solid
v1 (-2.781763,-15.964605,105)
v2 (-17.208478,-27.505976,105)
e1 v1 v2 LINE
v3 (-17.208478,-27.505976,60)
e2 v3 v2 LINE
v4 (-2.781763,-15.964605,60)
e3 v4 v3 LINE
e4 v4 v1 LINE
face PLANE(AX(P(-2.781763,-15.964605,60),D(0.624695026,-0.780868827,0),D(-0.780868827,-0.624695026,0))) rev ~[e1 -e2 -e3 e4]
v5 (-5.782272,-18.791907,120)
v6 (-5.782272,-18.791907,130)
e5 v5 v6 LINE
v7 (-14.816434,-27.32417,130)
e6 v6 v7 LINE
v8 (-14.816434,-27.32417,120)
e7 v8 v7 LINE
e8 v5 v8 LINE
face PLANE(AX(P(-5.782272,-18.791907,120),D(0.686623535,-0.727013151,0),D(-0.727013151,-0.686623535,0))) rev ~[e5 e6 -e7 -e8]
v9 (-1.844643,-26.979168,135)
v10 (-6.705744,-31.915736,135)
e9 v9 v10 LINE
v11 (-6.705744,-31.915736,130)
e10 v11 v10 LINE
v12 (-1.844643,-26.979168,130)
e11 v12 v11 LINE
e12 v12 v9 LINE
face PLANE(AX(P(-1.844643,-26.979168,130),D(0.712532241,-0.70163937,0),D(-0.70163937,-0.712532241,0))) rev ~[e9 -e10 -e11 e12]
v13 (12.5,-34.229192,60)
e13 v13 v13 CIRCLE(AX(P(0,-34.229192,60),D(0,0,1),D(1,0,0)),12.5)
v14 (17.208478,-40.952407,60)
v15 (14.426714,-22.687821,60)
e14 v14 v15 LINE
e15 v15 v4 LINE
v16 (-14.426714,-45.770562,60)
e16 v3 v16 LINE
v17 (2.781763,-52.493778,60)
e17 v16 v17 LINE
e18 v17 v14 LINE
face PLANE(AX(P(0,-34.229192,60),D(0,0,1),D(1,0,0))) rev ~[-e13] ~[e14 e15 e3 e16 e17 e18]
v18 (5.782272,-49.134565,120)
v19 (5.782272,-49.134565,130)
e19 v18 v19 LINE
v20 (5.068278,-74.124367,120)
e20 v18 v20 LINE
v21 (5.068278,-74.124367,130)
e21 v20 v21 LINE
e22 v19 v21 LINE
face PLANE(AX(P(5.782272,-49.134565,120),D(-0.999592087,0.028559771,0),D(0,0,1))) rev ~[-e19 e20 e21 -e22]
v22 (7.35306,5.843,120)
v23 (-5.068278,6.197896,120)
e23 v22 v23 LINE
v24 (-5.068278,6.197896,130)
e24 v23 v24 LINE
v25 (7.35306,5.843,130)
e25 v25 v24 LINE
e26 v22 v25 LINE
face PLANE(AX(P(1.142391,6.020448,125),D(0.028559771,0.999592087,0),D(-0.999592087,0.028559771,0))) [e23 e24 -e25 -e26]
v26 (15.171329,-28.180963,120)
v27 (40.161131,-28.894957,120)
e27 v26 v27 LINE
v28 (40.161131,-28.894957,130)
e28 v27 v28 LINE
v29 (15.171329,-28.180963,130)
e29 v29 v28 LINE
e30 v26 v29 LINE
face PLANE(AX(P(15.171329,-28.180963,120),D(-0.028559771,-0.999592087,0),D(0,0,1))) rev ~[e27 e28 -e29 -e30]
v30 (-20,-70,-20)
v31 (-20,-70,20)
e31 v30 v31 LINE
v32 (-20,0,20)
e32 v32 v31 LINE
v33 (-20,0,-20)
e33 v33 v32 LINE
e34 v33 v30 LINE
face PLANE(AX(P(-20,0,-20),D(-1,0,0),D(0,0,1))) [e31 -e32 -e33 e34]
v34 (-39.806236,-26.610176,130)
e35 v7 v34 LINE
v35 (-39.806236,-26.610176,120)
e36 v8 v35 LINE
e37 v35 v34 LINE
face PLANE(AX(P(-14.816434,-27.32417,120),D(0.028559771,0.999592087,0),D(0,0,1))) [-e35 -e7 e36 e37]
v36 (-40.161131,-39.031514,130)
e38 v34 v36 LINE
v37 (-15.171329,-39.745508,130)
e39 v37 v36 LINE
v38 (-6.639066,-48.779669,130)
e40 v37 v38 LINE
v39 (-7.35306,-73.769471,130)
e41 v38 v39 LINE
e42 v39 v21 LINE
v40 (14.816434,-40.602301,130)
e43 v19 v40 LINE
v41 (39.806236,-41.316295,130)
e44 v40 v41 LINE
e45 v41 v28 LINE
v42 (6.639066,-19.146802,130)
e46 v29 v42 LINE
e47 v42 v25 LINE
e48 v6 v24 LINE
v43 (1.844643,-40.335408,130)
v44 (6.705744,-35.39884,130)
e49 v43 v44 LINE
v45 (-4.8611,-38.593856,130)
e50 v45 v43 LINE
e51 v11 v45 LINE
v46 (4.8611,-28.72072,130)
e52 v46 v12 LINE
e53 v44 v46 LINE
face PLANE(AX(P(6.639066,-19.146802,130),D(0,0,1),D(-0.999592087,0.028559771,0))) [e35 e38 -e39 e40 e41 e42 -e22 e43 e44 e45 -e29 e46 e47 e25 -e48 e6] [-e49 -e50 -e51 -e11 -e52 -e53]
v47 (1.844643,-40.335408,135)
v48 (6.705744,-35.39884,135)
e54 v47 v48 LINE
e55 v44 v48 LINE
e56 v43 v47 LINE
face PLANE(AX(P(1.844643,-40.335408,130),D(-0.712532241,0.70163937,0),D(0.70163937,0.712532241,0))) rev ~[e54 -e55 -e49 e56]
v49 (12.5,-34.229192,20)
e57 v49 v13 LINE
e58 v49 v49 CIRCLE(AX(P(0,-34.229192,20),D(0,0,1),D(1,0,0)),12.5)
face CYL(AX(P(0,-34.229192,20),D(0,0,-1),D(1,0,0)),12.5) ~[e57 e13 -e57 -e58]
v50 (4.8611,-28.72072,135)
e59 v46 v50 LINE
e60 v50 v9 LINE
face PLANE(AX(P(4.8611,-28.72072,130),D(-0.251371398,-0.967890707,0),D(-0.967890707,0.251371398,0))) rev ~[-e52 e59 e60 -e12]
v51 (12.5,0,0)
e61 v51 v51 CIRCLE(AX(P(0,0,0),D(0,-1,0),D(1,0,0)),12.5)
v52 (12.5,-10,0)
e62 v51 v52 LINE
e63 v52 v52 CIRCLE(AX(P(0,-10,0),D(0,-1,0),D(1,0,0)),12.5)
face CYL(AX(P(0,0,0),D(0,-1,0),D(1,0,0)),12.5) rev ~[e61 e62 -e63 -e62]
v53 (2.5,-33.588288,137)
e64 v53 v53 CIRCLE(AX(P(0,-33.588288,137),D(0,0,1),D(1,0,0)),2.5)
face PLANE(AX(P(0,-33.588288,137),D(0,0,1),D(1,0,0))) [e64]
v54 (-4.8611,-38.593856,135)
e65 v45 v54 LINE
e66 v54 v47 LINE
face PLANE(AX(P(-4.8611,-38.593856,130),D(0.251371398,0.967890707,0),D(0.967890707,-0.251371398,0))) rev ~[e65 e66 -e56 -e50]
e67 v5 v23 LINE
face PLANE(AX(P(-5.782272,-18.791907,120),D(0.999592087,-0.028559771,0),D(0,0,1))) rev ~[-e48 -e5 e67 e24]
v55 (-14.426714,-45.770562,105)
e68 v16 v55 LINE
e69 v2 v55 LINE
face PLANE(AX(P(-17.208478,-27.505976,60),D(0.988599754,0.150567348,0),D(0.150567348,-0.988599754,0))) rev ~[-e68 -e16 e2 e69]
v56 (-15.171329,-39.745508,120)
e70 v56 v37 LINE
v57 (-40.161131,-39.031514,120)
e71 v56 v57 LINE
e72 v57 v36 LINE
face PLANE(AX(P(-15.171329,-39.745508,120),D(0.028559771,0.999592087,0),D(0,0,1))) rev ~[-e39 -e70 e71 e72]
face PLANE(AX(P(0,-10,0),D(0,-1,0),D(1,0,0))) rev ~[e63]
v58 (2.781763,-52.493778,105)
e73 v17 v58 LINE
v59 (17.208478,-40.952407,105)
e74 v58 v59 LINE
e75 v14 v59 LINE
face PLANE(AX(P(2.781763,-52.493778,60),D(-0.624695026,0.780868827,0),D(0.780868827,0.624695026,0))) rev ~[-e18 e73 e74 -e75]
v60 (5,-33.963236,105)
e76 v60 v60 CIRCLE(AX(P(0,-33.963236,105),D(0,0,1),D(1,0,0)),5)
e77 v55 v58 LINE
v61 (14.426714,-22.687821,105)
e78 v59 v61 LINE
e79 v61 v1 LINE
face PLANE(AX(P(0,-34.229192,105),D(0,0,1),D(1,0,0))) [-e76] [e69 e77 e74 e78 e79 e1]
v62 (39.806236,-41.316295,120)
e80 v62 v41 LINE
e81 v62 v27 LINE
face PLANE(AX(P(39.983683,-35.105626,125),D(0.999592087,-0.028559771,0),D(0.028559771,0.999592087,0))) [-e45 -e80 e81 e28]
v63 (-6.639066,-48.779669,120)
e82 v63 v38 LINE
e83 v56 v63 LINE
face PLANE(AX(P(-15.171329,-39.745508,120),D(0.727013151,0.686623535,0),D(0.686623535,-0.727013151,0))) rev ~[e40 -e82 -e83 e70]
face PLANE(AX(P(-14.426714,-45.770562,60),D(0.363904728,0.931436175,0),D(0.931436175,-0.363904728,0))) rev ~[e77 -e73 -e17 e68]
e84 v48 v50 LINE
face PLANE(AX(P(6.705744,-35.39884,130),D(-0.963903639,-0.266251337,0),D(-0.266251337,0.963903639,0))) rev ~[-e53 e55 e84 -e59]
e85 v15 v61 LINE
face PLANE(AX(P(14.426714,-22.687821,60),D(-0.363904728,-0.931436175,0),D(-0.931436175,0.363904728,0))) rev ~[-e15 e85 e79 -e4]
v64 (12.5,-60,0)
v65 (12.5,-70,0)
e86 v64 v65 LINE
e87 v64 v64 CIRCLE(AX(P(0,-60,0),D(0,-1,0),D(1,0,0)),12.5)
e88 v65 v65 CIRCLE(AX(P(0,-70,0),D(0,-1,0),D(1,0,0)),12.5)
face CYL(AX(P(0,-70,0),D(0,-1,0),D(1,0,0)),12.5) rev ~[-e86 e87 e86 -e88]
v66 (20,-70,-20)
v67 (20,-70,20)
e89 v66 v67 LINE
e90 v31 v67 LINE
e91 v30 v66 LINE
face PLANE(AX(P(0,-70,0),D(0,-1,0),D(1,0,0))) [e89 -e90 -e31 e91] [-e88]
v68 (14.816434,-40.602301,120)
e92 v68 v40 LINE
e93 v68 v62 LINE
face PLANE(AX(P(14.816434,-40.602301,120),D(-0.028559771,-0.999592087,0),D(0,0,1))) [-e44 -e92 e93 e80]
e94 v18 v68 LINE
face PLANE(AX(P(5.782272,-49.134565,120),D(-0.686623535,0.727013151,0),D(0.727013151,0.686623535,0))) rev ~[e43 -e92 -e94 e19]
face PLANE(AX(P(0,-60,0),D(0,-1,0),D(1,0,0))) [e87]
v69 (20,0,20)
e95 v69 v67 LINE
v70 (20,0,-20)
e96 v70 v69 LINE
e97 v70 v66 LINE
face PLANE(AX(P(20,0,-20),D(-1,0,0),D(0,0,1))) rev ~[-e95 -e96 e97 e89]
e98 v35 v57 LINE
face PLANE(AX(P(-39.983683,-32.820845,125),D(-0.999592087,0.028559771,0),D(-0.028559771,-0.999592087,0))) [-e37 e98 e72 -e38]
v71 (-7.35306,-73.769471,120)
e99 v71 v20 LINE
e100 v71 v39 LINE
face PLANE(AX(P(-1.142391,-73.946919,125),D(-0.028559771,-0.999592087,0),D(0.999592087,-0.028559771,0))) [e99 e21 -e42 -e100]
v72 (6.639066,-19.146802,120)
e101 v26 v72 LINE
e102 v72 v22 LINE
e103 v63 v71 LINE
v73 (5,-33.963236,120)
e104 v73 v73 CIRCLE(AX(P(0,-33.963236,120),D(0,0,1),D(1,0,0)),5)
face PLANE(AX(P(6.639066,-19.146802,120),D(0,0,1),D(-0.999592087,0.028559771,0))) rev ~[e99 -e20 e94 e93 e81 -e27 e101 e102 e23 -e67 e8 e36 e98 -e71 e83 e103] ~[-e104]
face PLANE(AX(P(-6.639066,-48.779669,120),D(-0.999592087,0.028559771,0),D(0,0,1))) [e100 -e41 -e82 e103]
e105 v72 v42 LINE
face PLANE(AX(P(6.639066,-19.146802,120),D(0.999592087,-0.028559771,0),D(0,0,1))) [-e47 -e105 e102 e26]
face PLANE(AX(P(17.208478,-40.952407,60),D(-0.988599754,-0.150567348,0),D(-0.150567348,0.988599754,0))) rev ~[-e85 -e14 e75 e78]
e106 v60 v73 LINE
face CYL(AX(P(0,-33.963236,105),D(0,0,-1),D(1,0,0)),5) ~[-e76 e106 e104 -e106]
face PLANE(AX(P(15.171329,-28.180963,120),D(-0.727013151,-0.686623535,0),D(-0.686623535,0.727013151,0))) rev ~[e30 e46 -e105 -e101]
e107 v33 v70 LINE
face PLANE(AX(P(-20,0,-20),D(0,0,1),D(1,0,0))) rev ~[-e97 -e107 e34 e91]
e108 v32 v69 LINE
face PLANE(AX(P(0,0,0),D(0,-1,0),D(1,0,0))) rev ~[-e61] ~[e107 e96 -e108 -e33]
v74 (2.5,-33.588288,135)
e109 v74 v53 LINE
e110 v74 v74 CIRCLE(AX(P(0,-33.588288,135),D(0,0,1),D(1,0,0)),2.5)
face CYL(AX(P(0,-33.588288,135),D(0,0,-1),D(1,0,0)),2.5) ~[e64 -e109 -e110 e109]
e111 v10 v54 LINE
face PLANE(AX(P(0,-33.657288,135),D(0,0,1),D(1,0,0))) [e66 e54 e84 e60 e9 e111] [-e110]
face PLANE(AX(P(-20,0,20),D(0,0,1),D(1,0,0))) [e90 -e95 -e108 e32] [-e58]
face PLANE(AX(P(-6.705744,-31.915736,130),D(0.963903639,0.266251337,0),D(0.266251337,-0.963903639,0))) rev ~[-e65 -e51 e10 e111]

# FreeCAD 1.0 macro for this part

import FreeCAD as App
import Part
import Sketcher

V = App.Vector


def add_polygon(sketch, points):
    """Adds a closed chain of lines whose ends are joined by coincident constraints."""
    first, n = sketch.GeometryCount, len(points)
    for a, b in zip(points, points[1:] + points[:1]):
        sketch.addGeometry(Part.LineSegment(App.Vector(*a, 0), App.Vector(*b, 0)), False)
    for i in range(n):
        sketch.addConstraint(Sketcher.Constraint("Coincident", first + i, 2, first + (i + 1) % n, 1))

doc = App.newDocument("Part")
body = doc.addObject("PartDesign::Body", "Body")

# Sketch on XZ plane
sketch1 = doc.addObject("Sketcher::SketchObject", "Sketch")
body.addObject(sketch1)
sketch1.AttachmentSupport = (doc.XZ_Plane, [""])
sketch1.MapMode = "FlatFace"
add_polygon(sketch1, [(-20, 20), (-20, -20), (20, -20), (20, 20)])  # lines 0-3
sketch1.addConstraint([
    Sketcher.Constraint("Vertical", 0),
    Sketcher.Constraint("Horizontal", 1),
    Sketcher.Constraint("Vertical", 2),
    Sketcher.Constraint("Horizontal", 3),
    Sketcher.Constraint("Symmetric", 0, 2, 2, 2, -1, 1),
    Sketcher.Constraint("Equal", 3, 0),
    Sketcher.Constraint("DistanceX", 1, 1, 1, 2, 40.0),
])
pad1 = doc.addObject("PartDesign::Pad", "Pad")
body.addObject(pad1)
pad1.Profile = sketch1
pad1.Length = 70

# Sketch on XZ plane
sketch2 = doc.addObject("Sketcher::SketchObject", "Sketch001")
body.addObject(sketch2)
sketch2.AttachmentSupport = (doc.XZ_Plane, [""])
sketch2.MapMode = "FlatFace"
sketch2.addGeometry(Part.Circle(V(0, 0, 0), V(0, 0, 1), 12), False)
sketch2.addConstraint([
    Sketcher.Constraint("Coincident", 0, 3, -1, 1),
    Sketcher.Constraint("Diameter", 0, 25.0),
])
pocket1 = doc.addObject("PartDesign::Pocket", "Pocket")
body.addObject(pocket1)
pocket1.Profile = sketch2
pocket1.Length = 20
pocket1.Midplane = True

# Sketch on XZ plane
sketch3 = doc.addObject("Sketcher::SketchObject", "Sketch002")
body.addObject(sketch3)
sketch3.AttachmentSupport = (doc.XZ_Plane, [""])
sketch3.MapMode = "FlatFace"
sketch3.AttachmentOffset = App.Placement(V(0, 0, 70), App.Rotation())
sketch3.addGeometry(Part.Circle(V(0, 0, 0), V(0, 0, 1), 12), False)
sketch3.addConstraint([
    Sketcher.Constraint("Coincident", 0, 3, -1, 1),
    Sketcher.Constraint("Diameter", 0, 25.0),
])
pocket2 = doc.addObject("PartDesign::Pocket", "Pocket001")
body.addObject(pocket2)
pocket2.Profile = sketch3
pocket2.Length = 20
pocket2.Midplane = True

# Sketch on XY plane
sketch4 = doc.addObject("Sketcher::SketchObject", "Sketch003")
body.addObject(sketch4)
sketch4.AttachmentSupport = (doc.XY_Plane, [""])
sketch4.MapMode = "FlatFace"
sketch4.AttachmentOffset = App.Placement(V(0, 0, 20), App.Rotation())
sketch4.addGeometry(Part.Circle(V(0, -34, 0), V(0, 0, 1), 12), False)
sketch4.addConstraint([
    Sketcher.Constraint("PointOnObject", 0, 3, -2),
    Sketcher.Constraint("Diameter", 0, 25.0),
    Sketcher.Constraint("DistanceY", 0, 3, -1, 1, 34.229192),
])
pad2 = doc.addObject("PartDesign::Pad", "Pad001")
body.addObject(pad2)
pad2.Profile = sketch4
pad2.Length = 40

# Sketch on XY plane
sketch5 = doc.addObject("Sketcher::SketchObject", "Sketch004")
body.addObject(sketch5)
sketch5.AttachmentSupport = (doc.XY_Plane, [""])
sketch5.MapMode = "FlatFace"
sketch5.AttachmentOffset = App.Placement(V(0, 0, 60), App.Rotation())
add_polygon(sketch5, [(-2.781763, -15.964605), (-17.208478, -27.505976), (-14.426714, -45.770562), (2.781763, -52.493778), (17.208478, -40.952407), (14.426714, -22.687821)])  # lines 0-5
sketch5.addConstraint([
    Sketcher.Constraint("Distance", 0, 18.475209),
    Sketcher.Constraint("Distance", 1, 18.475209),
    Sketcher.Constraint("Distance", 2, 18.475209),
    Sketcher.Constraint("Distance", 3, 18.475209),
    Sketcher.Constraint("Distance", 4, 18.475209),
    Sketcher.Constraint("Distance", 5, 18.475209),
    Sketcher.Constraint("DistanceY", 2, 2, -1, 1, 52.493778),
    Sketcher.Constraint("DistanceY", 4, 2, -1, 1, 22.687821),
    Sketcher.Constraint("DistanceX", 0, 2, 2, 2, 19.990241),
    Sketcher.Constraint("DistanceY", 2, 2, 3, 2, 11.541371),
    Sketcher.Constraint("DistanceY", 3, 2, 0, 2, 13.446432),
    Sketcher.Constraint("DistanceX", 0, 2, -1, 1, 17.208478),
])
pad3 = doc.addObject("PartDesign::Pad", "Pad002")
body.addObject(pad3)
pad3.Profile = sketch5
pad3.Length = 45

# Sketch on XY plane
sketch6 = doc.addObject("Sketcher::SketchObject", "Sketch005")
body.addObject(sketch6)
sketch6.AttachmentSupport = (doc.XY_Plane, [""])
sketch6.MapMode = "FlatFace"
sketch6.AttachmentOffset = App.Placement(V(0, 0, 105), App.Rotation())
sketch6.addGeometry(Part.Circle(V(0, -34, 0), V(0, 0, 1), 5), False)
sketch6.addConstraint([
    Sketcher.Constraint("PointOnObject", 0, 3, -2),
    Sketcher.Constraint("Diameter", 0, 10.0),
    Sketcher.Constraint("DistanceY", 0, 3, -1, 1, 33.963236),
])
pad4 = doc.addObject("PartDesign::Pad", "Pad003")
body.addObject(pad4)
pad4.Profile = sketch6
pad4.Length = 15

# Sketch on XY plane
sketch7 = doc.addObject("Sketcher::SketchObject", "Sketch006")
body.addObject(sketch7)
sketch7.AttachmentSupport = (doc.XY_Plane, [""])
sketch7.MapMode = "FlatFace"
sketch7.AttachmentOffset = App.Placement(V(0, 0, 120), App.Rotation())
add_polygon(sketch7, [(15, -28), (7, -19), (-6, -19), (-15, -27), (-15, -40), (-7, -49), (6, -49), (15, -41)])  # lines 0-7
sketch7.addConstraint([
    Sketcher.Constraint("Perpendicular", 0, 2),
    Sketcher.Constraint("Perpendicular", 1, 3),
    Sketcher.Constraint("Perpendicular", 2, 4),
    Sketcher.Constraint("Perpendicular", 3, 5),
    Sketcher.Constraint("Perpendicular", 4, 6),
    Sketcher.Constraint("Perpendicular", 5, 7),
    Sketcher.Constraint("Equal", 0, 1),
    Sketcher.Constraint("Equal", 1, 2),
    Sketcher.Constraint("Equal", 2, 3),
    Sketcher.Constraint("Equal", 3, 4),
    Sketcher.Constraint("Equal", 4, 5),
    Sketcher.Constraint("DistanceY", 0, 2, -1, 1, 19.146802),
    Sketcher.Constraint("DistanceY", 6, 2, -1, 1, 40.602301),
    Sketcher.Constraint("DistanceY", 3, 2, 1, 2, 20.953601),
    Sketcher.Constraint("DistanceY", 2, 2, -1, 1, 27.32417),
    Sketcher.Constraint("DistanceX", 3, 2, -1, 1, 15.171329),
])
pad5 = doc.addObject("PartDesign::Pad", "Pad004")
body.addObject(pad5)
pad5.Profile = sketch7
pad5.Length = 10

# Sketch on an angled plane
sketch8 = doc.addObject("Sketcher::SketchObject", "Sketch007")
body.addObject(sketch8)
sketch8.Placement = App.Placement(V(-1.397983, -48.929414, 0), App.Rotation(V(0.999592087, -0.028559771, 0), V(0, 0, 1.000000001), V(-0.028559771, -0.999592087, 0), "ZXY"))
add_polygon(sketch8, [(-5, 130), (-5, 120), (7, 120), (7, 130)])  # lines 0-3
sketch8.addConstraint([
    Sketcher.Constraint("Vertical", 0),
    Sketcher.Constraint("Horizontal", 1),
    Sketcher.Constraint("Vertical", 2),
    Sketcher.Constraint("Horizontal", 3),
    Sketcher.Constraint("DistanceY", 0, 2, 0, 1, 10.0),
    Sketcher.Constraint("DistanceY", -1, 1, 0, 2, 120.0),
    Sketcher.Constraint("DistanceX", 1, 1, 1, 2, 12.426407),
    Sketcher.Constraint("DistanceX", 0, 2, -1, 1, 5.243221),
])
pad6 = doc.addObject("PartDesign::Pad", "Pad005")
body.addObject(pad6)
pad6.Profile = sketch8
pad6.Length = 25

# Sketch on an angled plane
sketch9 = doc.addObject("Sketcher::SketchObject", "Sketch008")
body.addObject(sketch9)
sketch9.Placement = App.Placement(V(15.963468, -0.456099, 0), App.Rotation(V(0.028559771, 0.999592087, 0), V(0, 0, 1.000000001), V(0.999592087, -0.028559771, 0), "ZXY"))
add_polygon(sketch9, [(-40, 130), (-40, 120), (-28, 120), (-28, 130)])  # lines 0-3
sketch9.addConstraint([
    Sketcher.Constraint("Vertical", 0),
    Sketcher.Constraint("Horizontal", 1),
    Sketcher.Constraint("Vertical", 2),
    Sketcher.Constraint("Horizontal", 3),
    Sketcher.Constraint("DistanceY", 0, 2, 0, 1, 10.0),
    Sketcher.Constraint("DistanceY", -1, 1, 0, 2, 120.0),
    Sketcher.Constraint("DistanceX", 1, 1, 1, 2, 12.426407),
    Sketcher.Constraint("DistanceX", 1, 2, -1, 1, 27.736178),
])
pad7 = doc.addObject("PartDesign::Pad", "Pad006")
body.addObject(pad7)
pad7.Profile = sketch9
pad7.Length = 25

# Sketch on an angled plane
sketch10 = doc.addObject("Sketcher::SketchObject", "Sketch009")
body.addObject(sketch10)
sketch10.Placement = App.Placement(V(-14.024295, 0.400694, 0), App.Rotation(V(-0.028559771, -0.999592087, 0), V(0, 0, 1.000000001), V(-0.999592087, 0.028559771, 0), "ZXY"))
add_polygon(sketch10, [(28, 130), (28, 120), (40, 120), (40, 130)])  # lines 0-3
sketch10.addConstraint([
    Sketcher.Constraint("Vertical", 0),
    Sketcher.Constraint("Horizontal", 1),
    Sketcher.Constraint("Vertical", 2),
    Sketcher.Constraint("Horizontal", 3),
    Sketcher.Constraint("DistanceY", 0, 2, 0, 1, 10.0),
    Sketcher.Constraint("DistanceY", -1, 1, 0, 2, 120.0),
    Sketcher.Constraint("DistanceX", 1, 1, 1, 2, 12.426407),
    Sketcher.Constraint("DistanceX", -1, 1, 0, 2, 27.736178),
])
pad8 = doc.addObject("PartDesign::Pad", "Pad007")
body.addObject(pad8)
pad8.Profile = sketch10
pad8.Length = 25

# Sketch on an angled plane
sketch11 = doc.addObject("Sketcher::SketchObject", "Sketch010")
body.addObject(sketch11)
sketch11.Placement = App.Placement(V(-0.54119, -18.941652, 0), App.Rotation(V(-0.999592087, 0.028559771, 0), V(0, 0, 1.000000001), V(0.028559771, 0.999592087, 0), "ZXY"))
add_polygon(sketch11, [(-7, 130), (-7, 120), (5, 120), (5, 130)])  # lines 0-3
sketch11.addConstraint([
    Sketcher.Constraint("Vertical", 0),
    Sketcher.Constraint("Horizontal", 1),
    Sketcher.Constraint("Vertical", 2),
    Sketcher.Constraint("Horizontal", 3),
    Sketcher.Constraint("DistanceY", 0, 2, 0, 1, 10.0),
    Sketcher.Constraint("DistanceY", -1, 1, 0, 2, 120.0),
    Sketcher.Constraint("DistanceX", 1, 1, 1, 2, 12.426407),
    Sketcher.Constraint("DistanceX", -1, 1, 1, 2, 5.243221),
])
pad9 = doc.addObject("PartDesign::Pad", "Pad008")
body.addObject(pad9)
pad9.Profile = sketch11
pad9.Length = 25

# Sketch on XY plane
sketch12 = doc.addObject("Sketcher::SketchObject", "Sketch011")
body.addObject(sketch12)
sketch12.AttachmentSupport = (doc.XY_Plane, [""])
sketch12.MapMode = "FlatFace"
sketch12.AttachmentOffset = App.Placement(V(0, 0, 130), App.Rotation())
add_polygon(sketch12, [(-2, -27), (-7, -32), (-5, -39), (2, -40), (7, -35), (5, -29)])  # lines 0-5
sketch12.addConstraint([
    Sketcher.Constraint("Parallel", 0, 3),
    Sketcher.Constraint("Parallel", 1, 4),
    Sketcher.Constraint("Parallel", 2, 5),
    Sketcher.Constraint("Equal", 0, 1),
    Sketcher.Constraint("Equal", 1, 2),
    Sketcher.Constraint("Equal", 2, 3),
    Sketcher.Constraint("DistanceX", 1, 2, -1, 1, 4.8611),
    Sketcher.Constraint("DistanceX", -1, 1, 4, 2, 4.8611),
    Sketcher.Constraint("DistanceX", 2, 2, 3, 2, 4.8611),
    Sketcher.Constraint("DistanceY", 2, 2, -1, 1, 40.335408),
    Sketcher.Constraint("DistanceY", 3, 2, -1, 1, 35.39884),
    Sketcher.Constraint("DistanceY", 4, 2, -1, 1, 28.72072),
])
pad10 = doc.addObject("PartDesign::Pad", "Pad009")
body.addObject(pad10)
pad10.Profile = sketch12
pad10.Length = 5

# Sketch on XY plane
sketch13 = doc.addObject("Sketcher::SketchObject", "Sketch012")
body.addObject(sketch13)
sketch13.AttachmentSupport = (doc.XY_Plane, [""])
sketch13.MapMode = "FlatFace"
sketch13.AttachmentOffset = App.Placement(V(0, 0, 135), App.Rotation())
sketch13.addGeometry(Part.Circle(V(0, -33.6, 0), V(0, 0, 1), 2.5), False)
sketch13.addConstraint([
    Sketcher.Constraint("PointOnObject", 0, 3, -2),
    Sketcher.Constraint("Diameter", 0, 5.0),
    Sketcher.Constraint("DistanceY", 0, 3, -1, 1, 33.588288),
])
pad11 = doc.addObject("PartDesign::Pad", "Pad010")
body.addObject(pad11)
pad11.Profile = sketch13
pad11.Length = 2

doc.recompute()
